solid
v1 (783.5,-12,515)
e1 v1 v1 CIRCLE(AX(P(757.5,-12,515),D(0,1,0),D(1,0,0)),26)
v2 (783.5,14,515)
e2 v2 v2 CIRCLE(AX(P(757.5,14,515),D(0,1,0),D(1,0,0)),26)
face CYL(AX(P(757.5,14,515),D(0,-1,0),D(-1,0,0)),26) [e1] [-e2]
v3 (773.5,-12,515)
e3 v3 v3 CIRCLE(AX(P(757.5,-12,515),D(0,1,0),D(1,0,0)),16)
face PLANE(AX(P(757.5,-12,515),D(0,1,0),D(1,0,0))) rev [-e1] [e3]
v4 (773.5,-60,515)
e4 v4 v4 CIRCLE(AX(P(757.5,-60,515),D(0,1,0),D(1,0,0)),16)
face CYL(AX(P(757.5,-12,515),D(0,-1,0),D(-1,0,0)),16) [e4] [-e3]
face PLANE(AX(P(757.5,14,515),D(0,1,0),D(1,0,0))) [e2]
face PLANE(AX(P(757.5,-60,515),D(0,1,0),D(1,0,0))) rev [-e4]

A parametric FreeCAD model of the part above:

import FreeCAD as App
import Part
import Sketcher

V = App.Vector
Q = App.Units.Quantity

doc = App.newDocument("Part")
body = doc.addObject("PartDesign::Body", "Body")

sketch1 = doc.addObject("Sketcher::SketchObject", "Sketch")
body.addObject(sketch1)
sketch1.AttachmentSupport = (doc.XY_Plane, [""])
sketch1.MapMode = "FlatFace"
sketch1.AttachmentOffset = App.Placement(V(0, 0, -60), App.Rotation())
sketch1.addGeometry(Part.Circle(V(0, 0, 0), V(0, 0, 1), 16), False)
sketch1.addConstraint([
    Sketcher.Constraint("Coincident", 0, 3, -1, 1),
    Sketcher.Constraint("Diameter", 0, Q("32 mm")),
])
pad1 = doc.addObject("PartDesign::Pad", "Pad")
body.addObject(pad1)
pad1.Profile = sketch1
pad1.Length = 48
body2 = doc.addObject("PartDesign::Body", "Body001")
doc.recompute()

body.Placement = App.Placement(V(0, 0, 0), App.Rotation(V(-1, 0, 0), 90))
boolean = doc.addObject("PartDesign::Boolean", "Boolean")
body2.addObject(boolean)
boolean.Type = "Fuse"
boolean.addObjects([body])
body3 = doc.addObject("PartDesign::Body", "Body002")
doc.recompute()

body2.Placement = App.Placement(V(757.5, 0, 515), App.Rotation(V(0, 0, 1), 0))
boolean2 = doc.addObject("PartDesign::Boolean", "Boolean001")
body3.addObject(boolean2)
boolean2.Type = "Fuse"
boolean2.addObjects([body2])
body4 = doc.addObject("PartDesign::Body", "Body003")

sketch2 = doc.addObject("Sketcher::SketchObject", "Sketch001")
body4.addObject(sketch2)
sketch2.AttachmentSupport = (doc.getObject("XY_Plane003"), [""])
sketch2.MapMode = "FlatFace"
sketch2.AttachmentOffset = App.Placement(V(0, 0, -12), App.Rotation())
sketch2.addGeometry(Part.Circle(V(0, 0, 0), V(0, 0, 1), 26), False)
sketch2.addConstraint([
    Sketcher.Constraint("Coincident", 0, 3, -1, 1),
    Sketcher.Constraint("Diameter", 0, Q("52 mm")),
])
pad2 = doc.addObject("PartDesign::Pad", "Pad001")
body4.addObject(pad2)
pad2.Profile = sketch2
pad2.Length = 26
body5 = doc.addObject("PartDesign::Body", "Body004")
doc.recompute()

body4.Placement = App.Placement(V(0, 0, 0), App.Rotation(V(-1, 0, 0), 90))
boolean3 = doc.addObject("PartDesign::Boolean", "Boolean002")
body5.addObject(boolean3)
boolean3.Type = "Fuse"
boolean3.addObjects([body4])
body6 = doc.addObject("PartDesign::Body", "Body005")
doc.recompute()

body5.Placement = App.Placement(V(757.5, 0, 515), App.Rotation(V(0, 0, 1), 0))
boolean4 = doc.addObject("PartDesign::Boolean", "Boolean003")
body6.addObject(boolean4)
boolean4.Type = "Fuse"
boolean4.addObjects([body5])
doc.recompute()

boolean5 = doc.addObject("PartDesign::Boolean", "Boolean004")
body3.addObject(boolean5)
boolean5.Type = "Fuse"
boolean5.addObjects([body6])

doc.recompute()
